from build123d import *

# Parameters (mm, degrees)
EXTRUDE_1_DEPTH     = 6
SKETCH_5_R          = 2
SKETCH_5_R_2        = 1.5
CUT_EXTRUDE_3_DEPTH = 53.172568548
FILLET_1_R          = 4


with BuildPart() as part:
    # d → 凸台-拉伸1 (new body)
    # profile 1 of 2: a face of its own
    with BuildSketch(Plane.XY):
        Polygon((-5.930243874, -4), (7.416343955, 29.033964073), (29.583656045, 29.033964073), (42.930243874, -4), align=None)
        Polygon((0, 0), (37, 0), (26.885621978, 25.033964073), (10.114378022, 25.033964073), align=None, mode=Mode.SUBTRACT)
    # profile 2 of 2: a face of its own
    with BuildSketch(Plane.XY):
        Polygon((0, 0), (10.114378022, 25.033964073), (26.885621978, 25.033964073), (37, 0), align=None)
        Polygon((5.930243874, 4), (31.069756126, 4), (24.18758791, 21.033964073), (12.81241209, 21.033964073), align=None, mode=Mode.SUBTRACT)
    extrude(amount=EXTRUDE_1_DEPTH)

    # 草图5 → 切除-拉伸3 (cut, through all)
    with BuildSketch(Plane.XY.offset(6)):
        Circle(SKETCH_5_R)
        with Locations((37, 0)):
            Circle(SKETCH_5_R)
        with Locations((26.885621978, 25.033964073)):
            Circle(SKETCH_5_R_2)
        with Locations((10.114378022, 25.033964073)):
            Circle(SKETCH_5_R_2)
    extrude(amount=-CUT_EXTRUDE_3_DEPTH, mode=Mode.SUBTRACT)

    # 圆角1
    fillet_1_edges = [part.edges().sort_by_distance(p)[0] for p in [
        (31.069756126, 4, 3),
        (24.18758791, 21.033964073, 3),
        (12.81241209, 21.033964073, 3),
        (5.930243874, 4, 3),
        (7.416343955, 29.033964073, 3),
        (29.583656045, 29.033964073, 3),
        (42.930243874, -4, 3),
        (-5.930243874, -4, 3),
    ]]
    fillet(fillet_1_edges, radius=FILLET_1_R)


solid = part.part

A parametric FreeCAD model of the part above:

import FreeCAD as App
import Part
import Sketcher
Q = App.Units.Quantity


def edges_at(feature, points):
    """Names of the edges that pass closest to the given points."""
    edges = feature.Shape.Edges
    near = lambda p: min(range(len(edges)), key=lambda i: edges[i].distToShape(Part.Vertex(*p))[0])
    return sorted({f"Edge{near(p) + 1}" for p in points})

doc = App.newDocument("Part")
body = doc.addObject("PartDesign::Body", "Body")

# Sketch on XY plane
sketch1 = doc.addObject("Sketcher::SketchObject", "Sketch")
body.addObject(sketch1)
sketch1.AttachmentSupport = (doc.XY_Plane, [""])
sketch1.MapMode = "FlatFace"
sketch1.addGeometry(Part.LineSegment(App.Vector(7.416344, 29.033964, 0), App.Vector(-5.930244, -4, 0)), False)
sketch1.addGeometry(Part.LineSegment(App.Vector(-5.930244, -4, 0), App.Vector(42.930244, -4, 0)), False)
sketch1.addGeometry(Part.LineSegment(App.Vector(42.930244, -4, 0), App.Vector(29.583656, 29.033964, 0)), False)
sketch1.addGeometry(Part.LineSegment(App.Vector(29.583656, 29.033964, 0), App.Vector(7.416344, 29.033964, 0)), False)
sketch1.addGeometry(Part.LineSegment(App.Vector(31.069756, 4, 0), App.Vector(5.930244, 4, 0)), False)
sketch1.addGeometry(Part.LineSegment(App.Vector(5.930244, 4, 0), App.Vector(12.812412, 21.033964, 0)), False)
sketch1.addGeometry(Part.LineSegment(App.Vector(12.812412, 21.033964, 0), App.Vector(24.187588, 21.033964, 0)), False)
sketch1.addGeometry(Part.LineSegment(App.Vector(24.187588, 21.033964, 0), App.Vector(31.069756, 4, 0)), False)
sketch1.addConstraint(Sketcher.Constraint("Coincident", 0, 2, 1, 1))
sketch1.addConstraint(Sketcher.Constraint("Coincident", 1, 2, 2, 1))
sketch1.addConstraint(Sketcher.Constraint("Coincident", 2, 2, 3, 1))
sketch1.addConstraint(Sketcher.Constraint("Coincident", 3, 2, 0, 1))
sketch1.addConstraint(Sketcher.Constraint("Coincident", 4, 2, 5, 1))
sketch1.addConstraint(Sketcher.Constraint("Coincident", 5, 2, 6, 1))
sketch1.addConstraint(Sketcher.Constraint("Coincident", 6, 2, 7, 1))
sketch1.addConstraint(Sketcher.Constraint("Coincident", 7, 2, 4, 1))
sketch1.addConstraint(Sketcher.Constraint("Horizontal", 1))
sketch1.addConstraint(Sketcher.Constraint("Horizontal", 3))
sketch1.addConstraint(Sketcher.Constraint("Horizontal", 4))
sketch1.addConstraint(Sketcher.Constraint("Horizontal", 6))
sketch1.addConstraint(Sketcher.Constraint("Symmetric", 0, 2, 4, 2, -1, 1))
sketch1.addConstraint(Sketcher.Constraint("Parallel", 0, 5))
sketch1.addConstraint(Sketcher.Constraint("Parallel", 2, 7))
sketch1.addConstraint(Sketcher.Constraint("Equal", 0, 2))
sketch1.addConstraint(Sketcher.Constraint("Angle", 0, Q("-112 deg")))
sketch1.addConstraint(Sketcher.Constraint("DistanceY", 0, 2, -1, 1, Q("4 mm")))
sketch1.addConstraint(Sketcher.Constraint("DistanceX", 4, 2, 1, 2, Q("37 mm")))
sketch1.addConstraint(Sketcher.Constraint("DistanceY", 5, 2, 3, 2, Q("8 mm")))
sketch1.addConstraint(Sketcher.Constraint("DistanceX", 0, 2, 2, 2, Q("35.5139 mm")))
sketch1.addConstraint(Sketcher.Constraint("DistanceX", 2, 2, 7, 2, Q("1.4861 mm")))
sketch1.addConstraint(Sketcher.Constraint("DistanceX", 1, 1, 1, 2, Q("48.860488 mm")))
pad1 = doc.addObject("PartDesign::Pad", "Pad")
body.addObject(pad1)
pad1.Profile = sketch1
pad1.Length = 6

# Sketch on XY plane
sketch2 = doc.addObject("Sketcher::SketchObject", "Sketch001")
body.addObject(sketch2)
sketch2.AttachmentSupport = (doc.XY_Plane, [""])
sketch2.MapMode = "FlatFace"
sketch2.AttachmentOffset = App.Placement(App.Vector(0, 0, 6), App.Rotation())
sketch2.addGeometry(Part.Circle(App.Vector(0, 0, 0), App.Vector(0, 0, 1), 2), False)
sketch2.addGeometry(Part.Circle(App.Vector(37, 0, 0), App.Vector(0, 0, 1), 2), False)
sketch2.addGeometry(Part.Circle(App.Vector(26.885622, 25.033964, 0), App.Vector(0, 0, 1), 1.5), False)
sketch2.addGeometry(Part.Circle(App.Vector(10.114378, 25.033964, 0), App.Vector(0, 0, 1), 1.5), False)
sketch2.addConstraint(Sketcher.Constraint("Coincident", 0, 3, -1, 1))
sketch2.addConstraint(Sketcher.Constraint("Equal", 0, 1))
sketch2.addConstraint(Sketcher.Constraint("Equal", 2, 3))
sketch2.addConstraint(Sketcher.Constraint("PointOnObject", 1, 3, -1))
sketch2.addConstraint(Sketcher.Constraint("Horizontal", 2, 3, 3, 3))
sketch2.addConstraint(Sketcher.Constraint("Diameter", 0, Q("4 mm")))
sketch2.addConstraint(Sketcher.Constraint("Diameter", 2, Q("3 mm")))
sketch2.addConstraint(Sketcher.Constraint("DistanceX", -1, 1, 1, 3, Q("37 mm")))
sketch2.addConstraint(Sketcher.Constraint("DistanceX", -1, 1, 2, 3, Q("26.885622 mm")))
sketch2.addConstraint(Sketcher.Constraint("DistanceX", -1, 1, 3, 3, Q("10.114378 mm")))
sketch2.addConstraint(Sketcher.Constraint("DistanceY", -1, 1, 2, 3, Q("25.033964 mm")))
pocket1 = doc.addObject("PartDesign::Pocket", "Pocket")
body.addObject(pocket1)
pocket1.Profile = sketch2
pocket1.Type = "ThroughAll"
doc.recompute()

fillet = doc.addObject("PartDesign::Fillet", "Fillet")
body.addObject(fillet)
fillet.Base = (pocket1, edges_at(pocket1, [
    (31.07, 4, 3),
    (24.188, 21.034, 3),
    (12.812, 21.034, 3),
    (5.93, 4, 3),
    (7.416, 29.034, 3),
    (29.584, 29.034, 3),
    (42.93, -4, 3),
    (-5.93, -4, 3),
]))
fillet.Radius = 4

doc.recompute()
